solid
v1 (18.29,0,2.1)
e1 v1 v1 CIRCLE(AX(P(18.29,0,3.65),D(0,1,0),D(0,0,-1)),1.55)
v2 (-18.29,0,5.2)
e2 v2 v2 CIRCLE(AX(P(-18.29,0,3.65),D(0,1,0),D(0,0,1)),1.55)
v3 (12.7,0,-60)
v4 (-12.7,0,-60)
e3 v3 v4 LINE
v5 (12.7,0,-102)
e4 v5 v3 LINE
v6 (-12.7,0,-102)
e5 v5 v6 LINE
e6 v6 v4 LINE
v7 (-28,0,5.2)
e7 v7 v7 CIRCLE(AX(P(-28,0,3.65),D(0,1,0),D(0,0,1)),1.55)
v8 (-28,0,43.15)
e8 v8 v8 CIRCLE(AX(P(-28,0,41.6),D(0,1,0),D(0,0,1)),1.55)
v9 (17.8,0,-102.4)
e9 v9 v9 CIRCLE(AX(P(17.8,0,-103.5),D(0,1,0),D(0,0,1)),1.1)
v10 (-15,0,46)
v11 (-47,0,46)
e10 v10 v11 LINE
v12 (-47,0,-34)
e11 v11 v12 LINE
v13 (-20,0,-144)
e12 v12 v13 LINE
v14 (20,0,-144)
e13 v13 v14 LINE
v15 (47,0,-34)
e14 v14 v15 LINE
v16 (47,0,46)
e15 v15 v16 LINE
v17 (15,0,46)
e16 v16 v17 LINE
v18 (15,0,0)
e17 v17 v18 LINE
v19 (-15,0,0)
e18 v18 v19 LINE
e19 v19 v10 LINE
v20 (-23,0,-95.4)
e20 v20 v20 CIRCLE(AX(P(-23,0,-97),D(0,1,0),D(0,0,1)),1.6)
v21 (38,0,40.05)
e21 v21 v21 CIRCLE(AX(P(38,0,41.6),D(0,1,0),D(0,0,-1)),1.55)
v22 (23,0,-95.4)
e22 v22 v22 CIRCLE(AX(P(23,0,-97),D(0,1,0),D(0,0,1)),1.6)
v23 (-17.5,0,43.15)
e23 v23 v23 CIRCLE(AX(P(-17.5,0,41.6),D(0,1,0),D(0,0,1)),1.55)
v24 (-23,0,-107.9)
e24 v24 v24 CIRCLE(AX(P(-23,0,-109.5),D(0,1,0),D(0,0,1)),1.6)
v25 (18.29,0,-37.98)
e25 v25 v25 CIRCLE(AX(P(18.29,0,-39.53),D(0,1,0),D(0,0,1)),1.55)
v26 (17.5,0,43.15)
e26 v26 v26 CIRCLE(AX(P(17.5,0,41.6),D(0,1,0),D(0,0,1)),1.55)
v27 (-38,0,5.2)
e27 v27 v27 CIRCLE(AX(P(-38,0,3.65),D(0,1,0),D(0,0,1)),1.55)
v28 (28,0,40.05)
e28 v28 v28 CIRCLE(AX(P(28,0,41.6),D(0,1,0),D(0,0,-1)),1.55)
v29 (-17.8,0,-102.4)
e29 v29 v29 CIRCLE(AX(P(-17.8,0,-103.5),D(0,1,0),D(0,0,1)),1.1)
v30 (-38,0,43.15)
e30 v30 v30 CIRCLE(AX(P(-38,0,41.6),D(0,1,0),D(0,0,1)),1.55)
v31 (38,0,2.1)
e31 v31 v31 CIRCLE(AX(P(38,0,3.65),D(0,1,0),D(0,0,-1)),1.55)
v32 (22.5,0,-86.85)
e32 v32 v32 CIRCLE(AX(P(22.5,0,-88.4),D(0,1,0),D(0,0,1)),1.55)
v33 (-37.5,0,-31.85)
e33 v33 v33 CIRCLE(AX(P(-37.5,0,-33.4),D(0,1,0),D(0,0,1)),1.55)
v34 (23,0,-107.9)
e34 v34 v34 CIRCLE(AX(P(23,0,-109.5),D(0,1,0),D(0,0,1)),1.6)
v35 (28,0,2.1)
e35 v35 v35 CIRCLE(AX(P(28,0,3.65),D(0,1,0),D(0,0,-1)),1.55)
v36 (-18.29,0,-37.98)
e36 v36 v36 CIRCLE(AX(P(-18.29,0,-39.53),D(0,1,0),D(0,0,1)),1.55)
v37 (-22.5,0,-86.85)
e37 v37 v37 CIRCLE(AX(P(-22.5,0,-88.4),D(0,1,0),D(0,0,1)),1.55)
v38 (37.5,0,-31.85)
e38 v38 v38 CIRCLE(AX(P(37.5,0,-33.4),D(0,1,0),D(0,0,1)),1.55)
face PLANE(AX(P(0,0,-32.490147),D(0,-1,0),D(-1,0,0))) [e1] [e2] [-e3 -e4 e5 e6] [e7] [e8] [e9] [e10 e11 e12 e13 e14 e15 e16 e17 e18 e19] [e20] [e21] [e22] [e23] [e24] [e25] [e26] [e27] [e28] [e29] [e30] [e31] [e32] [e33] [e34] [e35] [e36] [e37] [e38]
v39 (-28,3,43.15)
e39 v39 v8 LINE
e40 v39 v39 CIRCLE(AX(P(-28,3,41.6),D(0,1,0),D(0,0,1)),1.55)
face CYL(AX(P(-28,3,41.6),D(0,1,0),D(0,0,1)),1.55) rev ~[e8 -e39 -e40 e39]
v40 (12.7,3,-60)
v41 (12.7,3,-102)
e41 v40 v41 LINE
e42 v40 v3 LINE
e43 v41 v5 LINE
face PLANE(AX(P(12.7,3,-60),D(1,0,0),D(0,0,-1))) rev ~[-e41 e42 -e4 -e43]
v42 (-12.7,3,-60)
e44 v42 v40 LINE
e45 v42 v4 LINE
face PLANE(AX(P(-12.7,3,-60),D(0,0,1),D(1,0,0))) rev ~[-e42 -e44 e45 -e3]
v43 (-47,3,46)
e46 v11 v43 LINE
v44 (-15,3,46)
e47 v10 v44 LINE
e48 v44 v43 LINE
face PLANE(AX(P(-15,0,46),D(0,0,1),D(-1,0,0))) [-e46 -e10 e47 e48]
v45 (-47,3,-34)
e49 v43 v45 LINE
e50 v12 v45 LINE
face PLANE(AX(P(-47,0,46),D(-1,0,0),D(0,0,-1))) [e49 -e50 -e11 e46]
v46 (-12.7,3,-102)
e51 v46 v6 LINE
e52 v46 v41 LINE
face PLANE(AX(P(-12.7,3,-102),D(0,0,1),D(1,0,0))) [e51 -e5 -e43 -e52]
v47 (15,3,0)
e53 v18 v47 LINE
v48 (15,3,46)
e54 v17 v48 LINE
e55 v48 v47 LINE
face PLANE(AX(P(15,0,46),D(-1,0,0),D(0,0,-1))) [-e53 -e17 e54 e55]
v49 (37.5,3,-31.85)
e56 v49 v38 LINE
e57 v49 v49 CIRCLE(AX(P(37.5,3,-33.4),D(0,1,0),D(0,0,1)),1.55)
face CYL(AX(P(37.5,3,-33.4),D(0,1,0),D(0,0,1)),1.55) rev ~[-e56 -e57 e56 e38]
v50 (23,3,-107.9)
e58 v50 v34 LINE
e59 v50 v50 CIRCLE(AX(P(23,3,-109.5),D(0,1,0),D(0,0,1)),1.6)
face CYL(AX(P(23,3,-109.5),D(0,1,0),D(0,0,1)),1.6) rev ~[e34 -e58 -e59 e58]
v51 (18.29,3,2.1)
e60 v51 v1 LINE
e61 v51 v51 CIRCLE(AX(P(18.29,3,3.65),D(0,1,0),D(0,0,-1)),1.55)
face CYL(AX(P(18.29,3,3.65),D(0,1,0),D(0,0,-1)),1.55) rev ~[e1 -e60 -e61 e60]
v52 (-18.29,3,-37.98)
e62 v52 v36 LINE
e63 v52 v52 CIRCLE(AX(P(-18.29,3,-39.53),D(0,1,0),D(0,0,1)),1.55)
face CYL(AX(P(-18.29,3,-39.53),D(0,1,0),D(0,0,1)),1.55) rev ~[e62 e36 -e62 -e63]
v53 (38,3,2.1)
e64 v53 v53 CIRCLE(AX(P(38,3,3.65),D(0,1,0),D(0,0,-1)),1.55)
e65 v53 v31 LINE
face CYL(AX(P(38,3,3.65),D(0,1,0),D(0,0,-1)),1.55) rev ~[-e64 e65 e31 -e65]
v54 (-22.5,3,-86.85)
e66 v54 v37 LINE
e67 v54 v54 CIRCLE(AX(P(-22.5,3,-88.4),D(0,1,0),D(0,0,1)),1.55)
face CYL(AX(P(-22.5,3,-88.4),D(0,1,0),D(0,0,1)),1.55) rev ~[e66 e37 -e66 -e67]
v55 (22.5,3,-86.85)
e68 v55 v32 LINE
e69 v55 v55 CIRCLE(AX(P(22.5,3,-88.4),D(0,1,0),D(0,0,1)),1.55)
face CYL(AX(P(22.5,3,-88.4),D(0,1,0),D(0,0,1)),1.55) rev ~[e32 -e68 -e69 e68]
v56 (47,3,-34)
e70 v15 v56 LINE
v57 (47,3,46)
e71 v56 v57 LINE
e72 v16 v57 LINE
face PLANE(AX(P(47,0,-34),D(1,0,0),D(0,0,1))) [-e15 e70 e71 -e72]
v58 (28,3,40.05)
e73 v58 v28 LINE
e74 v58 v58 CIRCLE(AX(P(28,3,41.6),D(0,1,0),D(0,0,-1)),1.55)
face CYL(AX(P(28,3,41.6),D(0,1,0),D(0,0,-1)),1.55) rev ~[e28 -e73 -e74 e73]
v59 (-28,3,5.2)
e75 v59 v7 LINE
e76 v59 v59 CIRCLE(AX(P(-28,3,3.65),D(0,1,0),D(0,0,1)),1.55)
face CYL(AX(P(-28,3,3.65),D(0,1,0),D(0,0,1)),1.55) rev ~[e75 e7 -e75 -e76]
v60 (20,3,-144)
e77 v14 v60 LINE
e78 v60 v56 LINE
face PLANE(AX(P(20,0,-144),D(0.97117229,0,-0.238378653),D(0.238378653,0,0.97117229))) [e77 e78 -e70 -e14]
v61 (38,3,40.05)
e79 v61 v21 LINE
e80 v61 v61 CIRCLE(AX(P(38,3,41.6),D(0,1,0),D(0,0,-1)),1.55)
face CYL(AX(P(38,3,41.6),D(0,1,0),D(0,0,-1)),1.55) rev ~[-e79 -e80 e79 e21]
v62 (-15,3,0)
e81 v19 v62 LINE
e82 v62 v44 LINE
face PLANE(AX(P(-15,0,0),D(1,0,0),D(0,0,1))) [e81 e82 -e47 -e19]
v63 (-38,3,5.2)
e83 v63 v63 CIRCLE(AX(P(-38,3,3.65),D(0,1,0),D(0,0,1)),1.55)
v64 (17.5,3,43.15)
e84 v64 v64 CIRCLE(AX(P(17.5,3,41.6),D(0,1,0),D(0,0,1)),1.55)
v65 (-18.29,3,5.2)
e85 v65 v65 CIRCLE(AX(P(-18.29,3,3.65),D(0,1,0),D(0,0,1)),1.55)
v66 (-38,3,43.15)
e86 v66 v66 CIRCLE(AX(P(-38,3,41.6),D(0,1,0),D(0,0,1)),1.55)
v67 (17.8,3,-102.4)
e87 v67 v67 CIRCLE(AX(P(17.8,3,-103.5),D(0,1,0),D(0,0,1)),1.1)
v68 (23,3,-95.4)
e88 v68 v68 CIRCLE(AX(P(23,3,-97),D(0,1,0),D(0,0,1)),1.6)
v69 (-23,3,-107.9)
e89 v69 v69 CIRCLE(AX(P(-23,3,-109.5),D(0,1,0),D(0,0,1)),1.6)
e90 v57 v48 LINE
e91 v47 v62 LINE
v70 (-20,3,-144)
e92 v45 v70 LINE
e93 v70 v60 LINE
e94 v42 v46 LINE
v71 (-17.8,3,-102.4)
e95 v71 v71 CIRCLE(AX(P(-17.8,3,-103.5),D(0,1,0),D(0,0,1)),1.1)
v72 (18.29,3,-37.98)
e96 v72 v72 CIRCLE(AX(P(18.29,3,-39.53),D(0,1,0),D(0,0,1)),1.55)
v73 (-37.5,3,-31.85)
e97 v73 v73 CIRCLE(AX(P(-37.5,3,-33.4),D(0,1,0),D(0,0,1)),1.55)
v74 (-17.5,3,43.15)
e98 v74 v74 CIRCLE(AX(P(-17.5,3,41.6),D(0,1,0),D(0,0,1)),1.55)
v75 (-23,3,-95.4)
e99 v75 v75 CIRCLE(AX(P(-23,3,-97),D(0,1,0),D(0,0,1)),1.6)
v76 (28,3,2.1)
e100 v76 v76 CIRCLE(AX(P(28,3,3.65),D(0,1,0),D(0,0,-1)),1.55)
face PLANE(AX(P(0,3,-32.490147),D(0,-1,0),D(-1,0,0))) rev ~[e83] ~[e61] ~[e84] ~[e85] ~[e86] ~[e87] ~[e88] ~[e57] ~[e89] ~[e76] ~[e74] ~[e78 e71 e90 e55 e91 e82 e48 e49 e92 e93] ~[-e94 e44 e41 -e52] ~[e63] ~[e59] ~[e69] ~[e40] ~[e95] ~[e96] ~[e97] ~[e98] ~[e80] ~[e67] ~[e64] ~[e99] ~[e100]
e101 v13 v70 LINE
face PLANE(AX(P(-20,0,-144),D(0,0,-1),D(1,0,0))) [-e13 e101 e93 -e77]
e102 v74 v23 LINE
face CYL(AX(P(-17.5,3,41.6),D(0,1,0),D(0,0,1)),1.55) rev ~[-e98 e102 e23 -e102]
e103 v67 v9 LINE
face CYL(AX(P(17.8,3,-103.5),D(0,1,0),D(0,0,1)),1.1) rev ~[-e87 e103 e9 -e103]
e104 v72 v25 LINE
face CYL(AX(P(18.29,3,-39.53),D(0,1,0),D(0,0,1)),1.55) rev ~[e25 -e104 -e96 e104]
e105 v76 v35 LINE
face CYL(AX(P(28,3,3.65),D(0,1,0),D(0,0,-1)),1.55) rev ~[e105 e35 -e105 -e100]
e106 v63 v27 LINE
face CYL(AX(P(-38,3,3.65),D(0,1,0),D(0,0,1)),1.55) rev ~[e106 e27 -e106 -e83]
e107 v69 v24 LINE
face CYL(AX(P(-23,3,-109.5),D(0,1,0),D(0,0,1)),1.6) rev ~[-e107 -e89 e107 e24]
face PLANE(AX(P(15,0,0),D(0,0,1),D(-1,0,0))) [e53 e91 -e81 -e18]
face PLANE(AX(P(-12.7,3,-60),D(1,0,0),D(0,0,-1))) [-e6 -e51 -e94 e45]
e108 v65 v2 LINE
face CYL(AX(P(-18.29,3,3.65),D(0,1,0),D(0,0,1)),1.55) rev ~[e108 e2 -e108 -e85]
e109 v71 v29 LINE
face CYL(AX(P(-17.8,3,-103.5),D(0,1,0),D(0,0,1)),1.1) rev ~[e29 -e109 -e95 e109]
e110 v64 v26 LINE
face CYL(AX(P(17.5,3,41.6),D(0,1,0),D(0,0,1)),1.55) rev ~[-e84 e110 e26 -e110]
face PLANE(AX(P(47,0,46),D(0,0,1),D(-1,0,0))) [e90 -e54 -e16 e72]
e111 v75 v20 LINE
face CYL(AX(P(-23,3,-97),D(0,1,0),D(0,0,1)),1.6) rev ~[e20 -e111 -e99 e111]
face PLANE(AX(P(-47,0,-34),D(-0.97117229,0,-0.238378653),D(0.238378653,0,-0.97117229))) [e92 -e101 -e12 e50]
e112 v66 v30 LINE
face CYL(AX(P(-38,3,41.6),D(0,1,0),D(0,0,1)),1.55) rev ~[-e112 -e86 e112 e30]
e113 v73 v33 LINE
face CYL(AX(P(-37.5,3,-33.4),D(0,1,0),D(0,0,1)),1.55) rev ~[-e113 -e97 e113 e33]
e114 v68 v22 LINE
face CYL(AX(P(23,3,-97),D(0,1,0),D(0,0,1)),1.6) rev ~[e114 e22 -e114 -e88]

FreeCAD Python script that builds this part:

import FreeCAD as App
import Part
import Sketcher
Q = App.Units.Quantity

doc = App.newDocument("Part")
params = doc.addObject("Spreadsheet::Sheet", "Params")
for row, (alias, value) in enumerate([
    ("sketch1_width", "32 mm"),
    ("sketch1_width2", "30 mm"),
    ("sketch1_width3", "40 mm"),
    ("sketch1_height", "46 mm"),
    ("sketch1_height2", "80 mm"),
    ("pad1_length", "3 mm"),
    ("sketch2_diameter", "3.1 mm"),
    ("pocket1_length", "3 mm"),
    ("sketch3_diameter", "2.2 mm"),
    ("sketch3_height", "42 mm"),
    ("sketch3_width", "25.4 mm"),
    ("pocket2_length", "10 mm"),
    ("sketch4_diameter", "3.2 mm"),
    ("pocket3_length", "10 mm"),
    ("sketch5_diameter", "3.1 mm"),
    ("pocket4_length", "10 mm"),
], start=1):
    params.set(f"A{row}", alias)
    params.set(f"B{row}", "=" + value)
    params.setAlias(f"B{row}", alias)

body = doc.addObject("PartDesign::Body", "Body")

sketch1 = body.newObject("Sketcher::SketchObject", "Sketch")
sketch1.AttachmentSupport = (doc.getObject("XZ_Plane"), [""])
sketch1.MapMode = "FlatFace"
sketch1.addGeometry([
    Part.LineSegment(App.Vector(-47, 46, 0), App.Vector(-15, 46, 0)),
    Part.LineSegment(App.Vector(-15, 46, 0), App.Vector(-15, 0, 0)),
    Part.LineSegment(App.Vector(-15, 0, 0), App.Vector(15, 0, 0)),
    Part.LineSegment(App.Vector(15, 0, 0), App.Vector(15, 46, 0)),
    Part.LineSegment(App.Vector(15, 46, 0), App.Vector(47, 46, 0)),
    Part.LineSegment(App.Vector(47, 46, 0), App.Vector(47, -34, 0)),
    Part.LineSegment(App.Vector(47, -34, 0), App.Vector(20, -144, 0)),
    Part.LineSegment(App.Vector(20, -144, 0), App.Vector(-20, -144, 0)),
    Part.LineSegment(App.Vector(-20, -144, 0), App.Vector(-47, -34, 0)),
    Part.LineSegment(App.Vector(-47, -34, 0), App.Vector(-47, 46, 0)),
], False)
sketch1.addConstraint([
    Sketcher.Constraint("Coincident", 0, 2, 1, 1),
    Sketcher.Constraint("Coincident", 1, 2, 2, 1),
    Sketcher.Constraint("Coincident", 2, 2, 3, 1),
    Sketcher.Constraint("Coincident", 3, 2, 4, 1),
    Sketcher.Constraint("Coincident", 4, 2, 5, 1),
    Sketcher.Constraint("Coincident", 5, 2, 6, 1),
    Sketcher.Constraint("Coincident", 6, 2, 7, 1),
    Sketcher.Constraint("Coincident", 7, 2, 8, 1),
    Sketcher.Constraint("Coincident", 8, 2, 9, 1),
    Sketcher.Constraint("Coincident", 9, 2, 0, 1),
    Sketcher.Constraint("Horizontal", 0),
    Sketcher.Constraint("Vertical", 1),
    Sketcher.Constraint("Horizontal", 2),
    Sketcher.Constraint("Vertical", 3),
    Sketcher.Constraint("Horizontal", 4),
    Sketcher.Constraint("Vertical", 5),
    Sketcher.Constraint("Horizontal", 7),
    Sketcher.Constraint("Vertical", 9),
    Sketcher.Constraint("Symmetric", 1, 2, 2, 2, -1, 1),
    Sketcher.Constraint("Symmetric", 5, 2, 8, 2, -2),
    Sketcher.Constraint("Horizontal", 0, 2, 3, 2),
    Sketcher.Constraint("Equal", 6, 8),
    Sketcher.Constraint("DistanceX", 0, 1, 0, 2, Q("32 mm")),
    Sketcher.Constraint("DistanceX", 2, 1, 2, 2, Q("30 mm")),
    Sketcher.Constraint("DistanceX", 7, 2, 7, 1, Q("40 mm")),
    Sketcher.Constraint("DistanceY", 1, 2, 1, 1, Q("46 mm")),
    Sketcher.Constraint("DistanceY", 5, 2, 5, 1, Q("80 mm")),
    Sketcher.Constraint("DistanceY", 6, 2, -1, 1, Q("144 mm")),
])
sketch1.setExpression("Constraints[22]", "Params.sketch1_width")
sketch1.setExpression("Constraints[23]", "Params.sketch1_width2")
sketch1.setExpression("Constraints[24]", "Params.sketch1_width3")
sketch1.setExpression("Constraints[25]", "Params.sketch1_height")
sketch1.setExpression("Constraints[26]", "Params.sketch1_height2")
pad1 = body.newObject("PartDesign::Pad", "Pad")
pad1.Profile = sketch1
pad1.setExpression("Length", "Params.pad1_length")
pad1.Reversed = True

sketch2 = body.newObject("Sketcher::SketchObject", "Sketch001")
sketch2.AttachmentSupport = (doc.getObject("XZ_Plane"), [""])
sketch2.MapMode = "FlatFace"
sketch2.AttachmentOffset = App.Placement(App.Vector(0, 0, -3), App.Rotation())
sketch2.addGeometry([
    Part.Circle(App.Vector(-38, 3.6, 0), App.Vector(0, 0, 1), 1.6),
    Part.Circle(App.Vector(-28, 3.6, 0), App.Vector(0, 0, 1), 1.6),
    Part.Circle(App.Vector(-38, 41.6, 0), App.Vector(0, 0, 1), 1.6),
    Part.Circle(App.Vector(-28, 41.6, 0), App.Vector(0, 0, 1), 1.6),
    Part.Circle(App.Vector(-18.3, 3.6, 0), App.Vector(0, 0, 1), 1.6),
    Part.Circle(App.Vector(18.3, 3.6, 0), App.Vector(0, 0, 1), 1.6),
    Part.Circle(App.Vector(28, 41.6, 0), App.Vector(0, 0, 1), 1.6),
    Part.Circle(App.Vector(38, 41.6, 0), App.Vector(0, 0, 1), 1.6),
    Part.Circle(App.Vector(28, 3.6, 0), App.Vector(0, 0, 1), 1.6),
    Part.Circle(App.Vector(38, 3.6, 0), App.Vector(0, 0, 1), 1.6),
    Part.Circle(App.Vector(-18.3, -39.5, 0), App.Vector(0, 0, 1), 1.6),
    Part.Circle(App.Vector(18.3, -39.5, 0), App.Vector(0, 0, 1), 1.6),
], False)
sketch2.addConstraint([
    Sketcher.Constraint("Equal", 0, 1),
    Sketcher.Constraint("Equal", 1, 2),
    Sketcher.Constraint("Equal", 2, 3),
    Sketcher.Constraint("Equal", 3, 4),
    Sketcher.Constraint("Equal", 4, 5),
    Sketcher.Constraint("Equal", 5, 6),
    Sketcher.Constraint("Equal", 6, 7),
    Sketcher.Constraint("Equal", 7, 8),
    Sketcher.Constraint("Equal", 8, 9),
    Sketcher.Constraint("Equal", 9, 10),
    Sketcher.Constraint("Equal", 10, 11),
    Sketcher.Constraint("Symmetric", 4, 3, 5, 3, -2),
    Sketcher.Constraint("Symmetric", 3, 3, 6, 3, -2),
    Sketcher.Constraint("Symmetric", 2, 3, 7, 3, -2),
    Sketcher.Constraint("Symmetric", 1, 3, 8, 3, -2),
    Sketcher.Constraint("Symmetric", 0, 3, 9, 3, -2),
    Sketcher.Constraint("Symmetric", 10, 3, 11, 3, -2),
    Sketcher.Constraint("Horizontal", 0, 3, 1, 3),
    Sketcher.Constraint("Horizontal", 2, 3, 3, 3),
    Sketcher.Constraint("Horizontal", 1, 3, 4, 3),
    Sketcher.Constraint("Vertical", 0, 3, 2, 3),
    Sketcher.Constraint("Vertical", 1, 3, 3, 3),
    Sketcher.Constraint("Vertical", 4, 3, 10, 3),
    Sketcher.Constraint("Diameter", 0, Q("3.1 mm")),
    Sketcher.Constraint("DistanceX", 0, 3, -1, 1, Q("38 mm")),
    Sketcher.Constraint("DistanceX", 1, 3, -1, 1, Q("28 mm")),
    Sketcher.Constraint("DistanceY", -1, 1, 2, 3, Q("41.6 mm")),
    Sketcher.Constraint("DistanceY", -1, 1, 0, 3, Q("3.65 mm")),
    Sketcher.Constraint("DistanceX", 4, 3, -1, 1, Q("18.29 mm")),
    Sketcher.Constraint("DistanceY", 10, 3, -1, 1, Q("39.53 mm")),
])
sketch2.setExpression("Constraints[23]", "Params.sketch2_diameter")
pocket1 = body.newObject("PartDesign::Pocket", "Pocket")
pocket1.Profile = sketch2
pocket1.setExpression("Length", "Params.pocket1_length")
pocket1.Reversed = True

sketch3 = body.newObject("Sketcher::SketchObject", "Sketch002")
sketch3.AttachmentSupport = (doc.getObject("XZ_Plane"), [""])
sketch3.MapMode = "FlatFace"
sketch3.AttachmentOffset = App.Placement(App.Vector(0, 0, -3), App.Rotation())
sketch3.addGeometry([
    Part.Circle(App.Vector(-17.8, -103.5, 0), App.Vector(0, 0, 1), 1.1),
    Part.Circle(App.Vector(17.8, -103.5, 0), App.Vector(0, 0, 1), 1.1),
    Part.LineSegment(App.Vector(-12.7, -102, 0), App.Vector(-12.7, -60, 0)),
    Part.LineSegment(App.Vector(-12.7, -60, 0), App.Vector(12.7, -60, 0)),
    Part.LineSegment(App.Vector(12.7, -60, 0), App.Vector(12.7, -102, 0)),
    Part.LineSegment(App.Vector(12.7, -102, 0), App.Vector(-12.7, -102, 0)),
], False)
sketch3.addConstraint([
    Sketcher.Constraint("Coincident", 2, 2, 3, 1),
    Sketcher.Constraint("Coincident", 3, 2, 4, 1),
    Sketcher.Constraint("Coincident", 4, 2, 5, 1),
    Sketcher.Constraint("Coincident", 5, 2, 2, 1),
    Sketcher.Constraint("Vertical", 2),
    Sketcher.Constraint("Horizontal", 3),
    Sketcher.Constraint("Vertical", 4),
    Sketcher.Constraint("Horizontal", 5),
    Sketcher.Constraint("Equal", 0, 1),
    Sketcher.Constraint("Symmetric", 0, 3, 1, 3, -2),
    Sketcher.Constraint("Diameter", 0, Q("2.2 mm")),
    Sketcher.Constraint("DistanceY", 2, 1, 2, 2, Q("42 mm")),
    Sketcher.Constraint("DistanceX", 3, 1, 3, 2, Q("25.4 mm")),
    Sketcher.Constraint("DistanceY", 2, 2, -1, 1, Q("60 mm")),
    Sketcher.Constraint("DistanceX", 0, 3, -1, 1, Q("17.8 mm")),
    Sketcher.Constraint("DistanceY", 0, 3, -1, 1, Q("103.5 mm")),
    Sketcher.Constraint("DistanceX", 2, 2, -1, 1, Q("12.7 mm")),
])
sketch3.setExpression("Constraints[10]", "Params.sketch3_diameter")
sketch3.setExpression("Constraints[11]", "Params.sketch3_height")
sketch3.setExpression("Constraints[12]", "Params.sketch3_width")
pocket2 = body.newObject("PartDesign::Pocket", "Pocket001")
pocket2.Profile = sketch3
pocket2.setExpression("Length", "Params.pocket2_length")
pocket2.Reversed = True

sketch4 = body.newObject("Sketcher::SketchObject", "Sketch003")
sketch4.AttachmentSupport = (doc.getObject("XZ_Plane"), [""])
sketch4.MapMode = "FlatFace"
sketch4.AttachmentOffset = App.Placement(App.Vector(0, 0, -3), App.Rotation())
sketch4.addGeometry([
    Part.Circle(App.Vector(-23, -109.5, 0), App.Vector(0, 0, 1), 1.6),
    Part.Circle(App.Vector(-23, -97, 0), App.Vector(0, 0, 1), 1.6),
    Part.Circle(App.Vector(23, -97, 0), App.Vector(0, 0, 1), 1.6),
    Part.Circle(App.Vector(23, -109.5, 0), App.Vector(0, 0, 1), 1.6),
], False)
sketch4.addConstraint([
    Sketcher.Constraint("Equal", 0, 1),
    Sketcher.Constraint("Equal", 1, 2),
    Sketcher.Constraint("Equal", 2, 3),
    Sketcher.Constraint("Symmetric", 1, 3, 2, 3, -2),
    Sketcher.Constraint("Symmetric", 0, 3, 3, 3, -2),
    Sketcher.Constraint("Vertical", 0, 3, 1, 3),
    Sketcher.Constraint("Diameter", 0, Q("3.2 mm")),
    Sketcher.Constraint("DistanceX", 0, 3, -1, 1, Q("23 mm")),
    Sketcher.Constraint("DistanceY", 1, 3, -1, 1, Q("97 mm")),
    Sketcher.Constraint("DistanceY", 0, 3, -1, 1, Q("109.5 mm")),
])
sketch4.setExpression("Constraints[6]", "Params.sketch4_diameter")
pocket3 = body.newObject("PartDesign::Pocket", "Pocket002")
pocket3.Profile = sketch4
pocket3.setExpression("Length", "Params.pocket3_length")
pocket3.Reversed = True

sketch5 = body.newObject("Sketcher::SketchObject", "Sketch004")
sketch5.AttachmentSupport = (doc.getObject("XZ_Plane"), [""])
sketch5.MapMode = "FlatFace"
sketch5.AttachmentOffset = App.Placement(App.Vector(0, 0, -3), App.Rotation())
sketch5.addGeometry([
    Part.Circle(App.Vector(-22.5, -88.4, 0), App.Vector(0, 0, 1), 1.6),
    Part.Circle(App.Vector(22.5, -88.4, 0), App.Vector(0, 0, 1), 1.6),
    Part.Circle(App.Vector(37.5, -33.4, 0), App.Vector(0, 0, 1), 1.6),
    Part.Circle(App.Vector(-37.5, -33.4, 0), App.Vector(0, 0, 1), 1.6),
    Part.Circle(App.Vector(-17.5, 41.6, 0), App.Vector(0, 0, 1), 1.6),
    Part.Circle(App.Vector(17.5, 41.6, 0), App.Vector(0, 0, 1), 1.6),
], False)
sketch5.addConstraint([
    Sketcher.Constraint("Equal", 0, 1),
    Sketcher.Constraint("Equal", 1, 2),
    Sketcher.Constraint("Equal", 2, 3),
    Sketcher.Constraint("Equal", 3, 4),
    Sketcher.Constraint("Equal", 4, 5),
    Sketcher.Constraint("Symmetric", 0, 3, 1, 3, -2),
    Sketcher.Constraint("Symmetric", 2, 3, 3, 3, -2),
    Sketcher.Constraint("Symmetric", 4, 3, 5, 3, -2),
    Sketcher.Constraint("Diameter", 0, Q("3.1 mm")),
    Sketcher.Constraint("DistanceX", 0, 3, 1, 3, Q("45 mm")),
    Sketcher.Constraint("DistanceX", 1, 3, 2, 3, Q("15 mm")),
    Sketcher.Constraint("DistanceY", 1, 3, 2, 3, Q("55 mm")),
    Sketcher.Constraint("DistanceX", 3, 3, 4, 3, Q("20 mm")),
    Sketcher.Constraint("DistanceY", 3, 3, 4, 3, Q("75 mm")),
    Sketcher.Constraint("DistanceY", 0, 3, -1, 1, Q("88.4 mm")),
])
sketch5.setExpression("Constraints[8]", "Params.sketch5_diameter")
pocket4 = body.newObject("PartDesign::Pocket", "Pocket003")
pocket4.Profile = sketch5
pocket4.setExpression("Length", "Params.pocket4_length")
pocket4.Reversed = True

doc.recompute()
